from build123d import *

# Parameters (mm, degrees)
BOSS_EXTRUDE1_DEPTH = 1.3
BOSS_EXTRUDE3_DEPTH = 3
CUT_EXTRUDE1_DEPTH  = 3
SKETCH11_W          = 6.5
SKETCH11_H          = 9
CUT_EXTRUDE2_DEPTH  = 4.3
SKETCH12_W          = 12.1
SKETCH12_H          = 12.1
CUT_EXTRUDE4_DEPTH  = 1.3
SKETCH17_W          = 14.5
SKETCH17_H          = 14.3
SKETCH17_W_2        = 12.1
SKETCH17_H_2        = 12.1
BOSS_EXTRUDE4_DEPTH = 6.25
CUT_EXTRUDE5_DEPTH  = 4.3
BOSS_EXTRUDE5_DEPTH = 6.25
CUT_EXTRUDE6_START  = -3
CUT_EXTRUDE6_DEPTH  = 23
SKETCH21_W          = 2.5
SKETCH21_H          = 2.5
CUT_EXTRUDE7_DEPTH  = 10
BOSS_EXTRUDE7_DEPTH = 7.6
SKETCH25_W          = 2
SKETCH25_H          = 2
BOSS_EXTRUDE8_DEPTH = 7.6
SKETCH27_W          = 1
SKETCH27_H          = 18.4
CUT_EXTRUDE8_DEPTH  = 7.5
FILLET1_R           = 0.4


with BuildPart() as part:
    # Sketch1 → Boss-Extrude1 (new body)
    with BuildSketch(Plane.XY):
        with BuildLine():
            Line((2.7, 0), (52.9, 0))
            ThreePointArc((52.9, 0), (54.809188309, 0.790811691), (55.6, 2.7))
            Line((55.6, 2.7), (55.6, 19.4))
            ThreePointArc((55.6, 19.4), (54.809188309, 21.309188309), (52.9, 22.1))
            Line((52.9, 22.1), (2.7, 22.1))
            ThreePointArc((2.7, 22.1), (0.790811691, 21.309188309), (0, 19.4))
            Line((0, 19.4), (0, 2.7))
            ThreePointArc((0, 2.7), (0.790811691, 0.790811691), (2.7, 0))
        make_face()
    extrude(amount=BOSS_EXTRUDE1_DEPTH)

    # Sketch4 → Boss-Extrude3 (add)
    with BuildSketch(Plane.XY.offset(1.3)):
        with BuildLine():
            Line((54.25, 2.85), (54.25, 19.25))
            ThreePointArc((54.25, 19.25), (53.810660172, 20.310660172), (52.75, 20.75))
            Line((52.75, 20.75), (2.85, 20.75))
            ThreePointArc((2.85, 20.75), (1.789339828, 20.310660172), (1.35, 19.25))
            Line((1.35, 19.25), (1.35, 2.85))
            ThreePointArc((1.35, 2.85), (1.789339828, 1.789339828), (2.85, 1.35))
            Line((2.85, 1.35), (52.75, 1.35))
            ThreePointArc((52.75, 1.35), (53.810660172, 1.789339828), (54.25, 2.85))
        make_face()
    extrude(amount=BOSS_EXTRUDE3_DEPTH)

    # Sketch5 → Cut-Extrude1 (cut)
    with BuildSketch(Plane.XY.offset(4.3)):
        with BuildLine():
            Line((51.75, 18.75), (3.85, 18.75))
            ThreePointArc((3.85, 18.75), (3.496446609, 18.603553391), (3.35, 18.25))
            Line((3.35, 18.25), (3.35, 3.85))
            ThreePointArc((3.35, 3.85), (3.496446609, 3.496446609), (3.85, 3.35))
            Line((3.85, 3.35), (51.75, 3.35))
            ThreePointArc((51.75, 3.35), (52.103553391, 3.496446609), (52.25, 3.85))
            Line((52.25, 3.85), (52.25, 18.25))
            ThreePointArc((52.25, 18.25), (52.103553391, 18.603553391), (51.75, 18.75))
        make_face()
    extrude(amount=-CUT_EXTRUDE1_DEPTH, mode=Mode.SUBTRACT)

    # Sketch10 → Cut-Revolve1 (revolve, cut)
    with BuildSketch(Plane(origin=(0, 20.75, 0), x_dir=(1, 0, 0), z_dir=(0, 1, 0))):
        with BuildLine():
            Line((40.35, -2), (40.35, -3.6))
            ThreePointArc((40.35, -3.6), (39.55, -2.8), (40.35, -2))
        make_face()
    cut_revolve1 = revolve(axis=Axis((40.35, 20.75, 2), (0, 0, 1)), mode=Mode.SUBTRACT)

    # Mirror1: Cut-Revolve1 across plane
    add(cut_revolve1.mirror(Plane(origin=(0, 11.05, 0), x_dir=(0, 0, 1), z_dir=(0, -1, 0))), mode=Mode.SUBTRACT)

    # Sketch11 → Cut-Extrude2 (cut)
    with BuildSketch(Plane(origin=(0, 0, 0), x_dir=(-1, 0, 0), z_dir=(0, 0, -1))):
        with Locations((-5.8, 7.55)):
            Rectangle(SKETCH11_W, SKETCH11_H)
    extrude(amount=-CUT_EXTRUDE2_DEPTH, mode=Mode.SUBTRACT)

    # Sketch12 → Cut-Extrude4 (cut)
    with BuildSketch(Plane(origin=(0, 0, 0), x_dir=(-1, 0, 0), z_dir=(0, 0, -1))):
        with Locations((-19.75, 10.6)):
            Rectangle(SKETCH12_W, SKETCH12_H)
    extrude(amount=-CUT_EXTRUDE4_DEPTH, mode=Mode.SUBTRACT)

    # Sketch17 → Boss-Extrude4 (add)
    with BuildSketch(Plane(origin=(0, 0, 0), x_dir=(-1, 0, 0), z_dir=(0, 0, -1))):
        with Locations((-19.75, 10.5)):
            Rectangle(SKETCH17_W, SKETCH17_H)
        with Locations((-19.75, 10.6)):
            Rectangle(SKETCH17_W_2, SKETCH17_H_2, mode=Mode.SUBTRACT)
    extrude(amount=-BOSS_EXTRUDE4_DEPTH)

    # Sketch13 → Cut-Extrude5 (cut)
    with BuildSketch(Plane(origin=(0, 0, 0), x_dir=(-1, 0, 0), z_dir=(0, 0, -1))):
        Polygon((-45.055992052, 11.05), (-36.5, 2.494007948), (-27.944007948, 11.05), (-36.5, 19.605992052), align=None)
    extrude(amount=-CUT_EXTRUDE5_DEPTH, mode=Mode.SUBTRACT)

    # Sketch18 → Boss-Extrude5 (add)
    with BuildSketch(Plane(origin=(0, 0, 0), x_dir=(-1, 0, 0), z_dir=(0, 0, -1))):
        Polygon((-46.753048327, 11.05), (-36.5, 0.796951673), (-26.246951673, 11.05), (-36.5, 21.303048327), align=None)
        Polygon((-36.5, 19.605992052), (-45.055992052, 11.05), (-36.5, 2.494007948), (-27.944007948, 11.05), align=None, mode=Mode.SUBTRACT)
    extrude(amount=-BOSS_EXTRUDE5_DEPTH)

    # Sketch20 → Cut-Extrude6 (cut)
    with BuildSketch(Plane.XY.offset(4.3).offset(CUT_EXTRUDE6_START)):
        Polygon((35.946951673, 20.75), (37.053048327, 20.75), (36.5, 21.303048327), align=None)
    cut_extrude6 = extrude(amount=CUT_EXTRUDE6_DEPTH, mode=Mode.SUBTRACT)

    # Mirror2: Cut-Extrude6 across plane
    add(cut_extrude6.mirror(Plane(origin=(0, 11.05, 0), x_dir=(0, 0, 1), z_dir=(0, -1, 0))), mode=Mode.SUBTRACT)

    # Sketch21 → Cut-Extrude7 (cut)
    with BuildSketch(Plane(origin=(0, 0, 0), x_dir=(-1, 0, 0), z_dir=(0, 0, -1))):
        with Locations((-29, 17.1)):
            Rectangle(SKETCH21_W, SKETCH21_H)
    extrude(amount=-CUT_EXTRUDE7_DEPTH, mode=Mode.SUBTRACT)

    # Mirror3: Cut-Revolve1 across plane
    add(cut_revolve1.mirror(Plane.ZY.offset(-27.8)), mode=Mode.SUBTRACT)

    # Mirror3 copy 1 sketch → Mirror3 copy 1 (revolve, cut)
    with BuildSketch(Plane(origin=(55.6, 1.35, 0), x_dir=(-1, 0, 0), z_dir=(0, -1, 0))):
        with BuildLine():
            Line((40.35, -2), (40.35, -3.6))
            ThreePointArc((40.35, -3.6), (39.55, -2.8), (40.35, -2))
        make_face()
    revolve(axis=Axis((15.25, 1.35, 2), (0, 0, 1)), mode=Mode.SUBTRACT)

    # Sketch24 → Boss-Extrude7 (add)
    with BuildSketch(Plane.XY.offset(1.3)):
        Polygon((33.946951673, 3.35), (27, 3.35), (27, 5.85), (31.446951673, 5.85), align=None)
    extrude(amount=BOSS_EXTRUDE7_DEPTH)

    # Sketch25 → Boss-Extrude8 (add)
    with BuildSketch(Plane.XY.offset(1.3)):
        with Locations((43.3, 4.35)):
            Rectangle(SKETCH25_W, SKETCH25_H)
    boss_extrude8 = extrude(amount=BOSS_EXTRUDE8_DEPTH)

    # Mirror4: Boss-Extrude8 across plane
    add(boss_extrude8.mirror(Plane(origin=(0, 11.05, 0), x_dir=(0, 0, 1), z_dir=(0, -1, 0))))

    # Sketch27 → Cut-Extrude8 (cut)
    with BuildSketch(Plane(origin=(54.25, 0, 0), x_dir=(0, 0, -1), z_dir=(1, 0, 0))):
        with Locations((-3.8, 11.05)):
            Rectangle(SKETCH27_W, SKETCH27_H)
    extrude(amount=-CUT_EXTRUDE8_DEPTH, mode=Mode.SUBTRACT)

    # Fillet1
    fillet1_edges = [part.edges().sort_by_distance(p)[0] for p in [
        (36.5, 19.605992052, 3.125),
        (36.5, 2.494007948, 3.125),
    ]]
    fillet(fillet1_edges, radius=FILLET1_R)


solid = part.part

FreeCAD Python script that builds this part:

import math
import FreeCAD as App
import Part
import Sketcher
Q = App.Units.Quantity


def edges_at(feature, points):
    """Names of the edges that pass closest to the given points."""
    edges = feature.Shape.Edges
    near = lambda p: min(range(len(edges)), key=lambda i: edges[i].distToShape(Part.Vertex(*p))[0])
    return sorted({f"Edge{near(p) + 1}" for p in points})


def add_polygon(sketch, points):
    """Adds a closed chain of lines whose ends are joined by coincident constraints."""
    first, n = sketch.GeometryCount, len(points)
    for a, b in zip(points, points[1:] + points[:1]):
        sketch.addGeometry(Part.LineSegment(App.Vector(*a, 0), App.Vector(*b, 0)), False)
    for i in range(n):
        sketch.addConstraint(Sketcher.Constraint("Coincident", first + i, 2, first + (i + 1) % n, 1))

doc = App.newDocument("Part")
params = doc.addObject("Spreadsheet::Sheet", "Params")
for row, (alias, value) in enumerate([
    ("sketch1_radius", "2.7 mm"),
    ("sketch1_width", "50.2 mm"),
    ("sketch1_height", "16.7 mm"),
    ("pad1_length", "1.3 mm"),
    ("sketch2_radius", "1.5 mm"),
    ("sketch2_width", "49.9 mm"),
    ("sketch2_height", "16.4 mm"),
    ("pad2_length", "3 mm"),
    ("sketch3_radius", "0.5 mm"),
    ("sketch3_width", "47.9 mm"),
    ("sketch3_height", "14.4 mm"),
    ("pocket1_length", "3 mm"),
    ("sketch4_radius", "0.8 mm"),
    ("groove_angle", "360 deg"),
    ("sketch5_height", "9 mm"),
    ("sketch5_width", "6.5 mm"),
    ("pocket2_length", "4.3 mm"),
    ("sketch6_width", "12.1 mm"),
    ("pocket3_length", "1.3 mm"),
    ("sketch7_width", "14.5 mm"),
    ("sketch7_width2", "12.1 mm"),
    ("sketch7_height", "14.3 mm"),
    ("pad3_length", "6.25 mm"),
    ("sketch8_length", "12.1 mm"),
    ("pocket4_length", "4.3 mm"),
    ("sketch9_length", "14.5 mm"),
    ("sketch9_length2", "12.1 mm"),
    ("pad4_length", "6.25 mm"),
    ("pocket5_length", "23 mm"),
    ("sketch11_width", "2.5 mm"),
    ("pocket6_length", "10 mm"),
    ("sketch12_radius", "0.8 mm"),
    ("groove2_angle", "360 deg"),
    ("sketch13_height", "2.5 mm"),
    ("pad5_length", "7.6 mm"),
    ("sketch14_width", "2 mm"),
    ("pad6_length", "7.6 mm"),
    ("sketch15_height", "1 mm"),
    ("sketch15_width", "18.4 mm"),
    ("pocket7_length", "7.5 mm"),
    ("fillet_radius", "0.4 mm"),
], start=1):
    params.set(f"A{row}", alias)
    params.set(f"B{row}", "=" + value)
    params.setAlias(f"B{row}", alias)

body = doc.addObject("PartDesign::Body", "Body")

sketch1 = body.newObject("Sketcher::SketchObject", "Sketch")
sketch1.AttachmentSupport = (doc.getObject("XY_Plane"), [""])
sketch1.MapMode = "FlatFace"
sketch1.addGeometry([
    Part.LineSegment(App.Vector(2.7, 0, 0), App.Vector(52.9, 0, 0)),
    Part.ArcOfCircle(Part.Circle(App.Vector(52.9, 2.7, 0), App.Vector(0, 0, 1), 2.7), math.radians(-90), math.radians(0)),
    Part.LineSegment(App.Vector(55.6, 2.7, 0), App.Vector(55.6, 19.4, 0)),
    Part.ArcOfCircle(Part.Circle(App.Vector(52.9, 19.4, 0), App.Vector(0, 0, 1), 2.7), math.radians(0), math.radians(90)),
    Part.LineSegment(App.Vector(52.9, 22.1, 0), App.Vector(2.7, 22.1, 0)),
    Part.ArcOfCircle(Part.Circle(App.Vector(2.7, 19.4, 0), App.Vector(0, 0, 1), 2.7), math.radians(90), math.radians(180)),
    Part.LineSegment(App.Vector(0, 19.4, 0), App.Vector(0, 2.7, 0)),
    Part.ArcOfCircle(Part.Circle(App.Vector(2.7, 2.7, 0), App.Vector(0, 0, 1), 2.7), math.radians(-180), math.radians(-90)),
], False)
sketch1.addConstraint([
    Sketcher.Constraint("Tangent", 0, 2, 1, 1),
    Sketcher.Constraint("Tangent", 1, 2, 2, 1),
    Sketcher.Constraint("Tangent", 2, 2, 3, 1),
    Sketcher.Constraint("Tangent", 3, 2, 4, 1),
    Sketcher.Constraint("Tangent", 4, 2, 5, 1),
    Sketcher.Constraint("Tangent", 5, 2, 6, 1),
    Sketcher.Constraint("Tangent", 6, 2, 7, 1),
    Sketcher.Constraint("Tangent", 7, 2, 0, 1),
    Sketcher.Constraint("Horizontal", 0),
    Sketcher.Constraint("Vertical", 2),
    Sketcher.Constraint("Horizontal", 4),
    Sketcher.Constraint("Vertical", 6),
    Sketcher.Constraint("Equal", 1, 3),
    Sketcher.Constraint("Equal", 3, 5),
    Sketcher.Constraint("Equal", 5, 7),
    Sketcher.Constraint("PointOnObject", 0, 2, -1),
    Sketcher.Constraint("PointOnObject", 5, 2, -2),
    Sketcher.Constraint("Radius", 1, 2.7),
    Sketcher.Constraint("DistanceX", 0, 1, 0, 2, 50.2),
    Sketcher.Constraint("DistanceY", 2, 1, 2, 2, 16.7),
])
sketch1.setExpression("Constraints[17]", "Params.sketch1_radius")
sketch1.setExpression("Constraints[18]", "Params.sketch1_width")
sketch1.setExpression("Constraints[19]", "Params.sketch1_height")
pad1 = body.newObject("PartDesign::Pad", "Pad")
pad1.Profile = sketch1
pad1.setExpression("Length", "Params.pad1_length")

sketch2 = body.newObject("Sketcher::SketchObject", "Sketch001")
sketch2.AttachmentSupport = (doc.getObject("XY_Plane"), [""])
sketch2.MapMode = "FlatFace"
sketch2.AttachmentOffset = App.Placement(App.Vector(0, 0, 1.3), App.Rotation())
sketch2.addGeometry([
    Part.LineSegment(App.Vector(54.2, 2.9, 0), App.Vector(54.2, 19.2, 0)),
    Part.ArcOfCircle(Part.Circle(App.Vector(52.8, 19.3, 0), App.Vector(0, 0, 1), 1.5), math.radians(0), math.radians(90)),
    Part.LineSegment(App.Vector(52.8, 20.8, 0), App.Vector(2.9, 20.8, 0)),
    Part.ArcOfCircle(Part.Circle(App.Vector(2.8, 19.3, 0), App.Vector(0, 0, 1), 1.5), math.radians(90), math.radians(180)),
    Part.LineSegment(App.Vector(1.4, 19.2, 0), App.Vector(1.4, 2.9, 0)),
    Part.ArcOfCircle(Part.Circle(App.Vector(2.8, 2.8, 0), App.Vector(0, 0, 1), 1.5), math.radians(180), math.radians(270)),
    Part.LineSegment(App.Vector(2.9, 1.4, 0), App.Vector(52.8, 1.4, 0)),
    Part.ArcOfCircle(Part.Circle(App.Vector(52.8, 2.8, 0), App.Vector(0, 0, 1), 1.5), math.radians(-90), math.radians(0)),
], False)
sketch2.addConstraint([
    Sketcher.Constraint("Tangent", 0, 2, 1, 1),
    Sketcher.Constraint("Tangent", 1, 2, 2, 1),
    Sketcher.Constraint("Tangent", 2, 2, 3, 1),
    Sketcher.Constraint("Tangent", 3, 2, 4, 1),
    Sketcher.Constraint("Tangent", 4, 2, 5, 1),
    Sketcher.Constraint("Tangent", 5, 2, 6, 1),
    Sketcher.Constraint("Tangent", 6, 2, 7, 1),
    Sketcher.Constraint("Tangent", 7, 2, 0, 1),
    Sketcher.Constraint("Vertical", 0),
    Sketcher.Constraint("Horizontal", 2),
    Sketcher.Constraint("Vertical", 4),
    Sketcher.Constraint("Horizontal", 6),
    Sketcher.Constraint("Equal", 1, 3),
    Sketcher.Constraint("Equal", 3, 5),
    Sketcher.Constraint("Equal", 5, 7),
    Sketcher.Constraint("Radius", 1, 1.5),
    Sketcher.Constraint("DistanceX", 2, 2, 2, 1, 49.9),
    Sketcher.Constraint("DistanceY", 0, 1, 0, 2, 16.4),
    Sketcher.Constraint("DistanceX", -1, 1, 1, 3, 52.75),
    Sketcher.Constraint("DistanceY", -1, 1, 1, 3, 19.25),
])
sketch2.setExpression("Constraints[15]", "Params.sketch2_radius")
sketch2.setExpression("Constraints[16]", "Params.sketch2_width")
sketch2.setExpression("Constraints[17]", "Params.sketch2_height")
pad2 = body.newObject("PartDesign::Pad", "Pad001")
pad2.Profile = sketch2
pad2.setExpression("Length", "Params.pad2_length")

sketch3 = body.newObject("Sketcher::SketchObject", "Sketch002")
sketch3.AttachmentSupport = (doc.getObject("XY_Plane"), [""])
sketch3.MapMode = "FlatFace"
sketch3.AttachmentOffset = App.Placement(App.Vector(0, 0, 4.3), App.Rotation())
sketch3.addGeometry([
    Part.LineSegment(App.Vector(51.75, 18.75, 0), App.Vector(3.85, 18.75, 0)),
    Part.ArcOfCircle(Part.Circle(App.Vector(3.85, 18.25, 0), App.Vector(0, 0, 1), 0.5), math.radians(90), math.radians(180)),
    Part.LineSegment(App.Vector(3.35, 18.25, 0), App.Vector(3.35, 3.85, 0)),
    Part.ArcOfCircle(Part.Circle(App.Vector(3.85, 3.85, 0), App.Vector(0, 0, 1), 0.5), math.radians(180), math.radians(270)),
    Part.LineSegment(App.Vector(3.85, 3.35, 0), App.Vector(51.75, 3.35, 0)),
    Part.ArcOfCircle(Part.Circle(App.Vector(51.75, 3.85, 0), App.Vector(0, 0, 1), 0.5), math.radians(-90), math.radians(0)),
    Part.LineSegment(App.Vector(52.25, 3.85, 0), App.Vector(52.25, 18.25, 0)),
    Part.ArcOfCircle(Part.Circle(App.Vector(51.75, 18.25, 0), App.Vector(0, 0, 1), 0.5), math.radians(0), math.radians(90)),
], False)
sketch3.addConstraint([
    Sketcher.Constraint("Tangent", 0, 2, 1, 1),
    Sketcher.Constraint("Tangent", 1, 2, 2, 1),
    Sketcher.Constraint("Tangent", 2, 2, 3, 1),
    Sketcher.Constraint("Tangent", 3, 2, 4, 1),
    Sketcher.Constraint("Tangent", 4, 2, 5, 1),
    Sketcher.Constraint("Tangent", 5, 2, 6, 1),
    Sketcher.Constraint("Tangent", 6, 2, 7, 1),
    Sketcher.Constraint("Tangent", 7, 2, 0, 1),
    Sketcher.Constraint("Horizontal", 0),
    Sketcher.Constraint("Vertical", 2),
    Sketcher.Constraint("Horizontal", 4),
    Sketcher.Constraint("Vertical", 6),
    Sketcher.Constraint("Equal", 1, 3),
    Sketcher.Constraint("Equal", 3, 5),
    Sketcher.Constraint("Equal", 5, 7),
    Sketcher.Constraint("Radius", 1, 0.5),
    Sketcher.Constraint("DistanceX", 0, 2, 0, 1, 47.9),
    Sketcher.Constraint("DistanceY", 2, 2, 2, 1, 14.4),
    Sketcher.Constraint("DistanceX", -1, 1, 1, 3, 3.85),
    Sketcher.Constraint("DistanceY", -1, 1, 1, 3, 18.25),
])
sketch3.setExpression("Constraints[15]", "Params.sketch3_radius")
sketch3.setExpression("Constraints[16]", "Params.sketch3_width")
sketch3.setExpression("Constraints[17]", "Params.sketch3_height")
pocket1 = body.newObject("PartDesign::Pocket", "Pocket")
pocket1.Profile = sketch3
pocket1.setExpression("Length", "Params.pocket1_length")

sketch4 = body.newObject("Sketcher::SketchObject", "Sketch003")
sketch4.AttachmentSupport = (doc.getObject("XZ_Plane"), [""])
sketch4.MapMode = "FlatFace"
sketch4.AttachmentOffset = App.Placement(App.Vector(0, 0, -20.75), App.Rotation())
sketch4.addGeometry([
    Part.LineSegment(App.Vector(40.4, 3.6, 0), App.Vector(40.4, 2, 0)),
    Part.ArcOfCircle(Part.Circle(App.Vector(40.4, 2.8, 0), App.Vector(0, 0, 1), 0.8), math.radians(90), math.radians(270)),
], False)
sketch4.addGeometry(Part.LineSegment(App.Vector(40.4, 2, 0), App.Vector(40.4, 3.6, 0)), True)
sketch4.addConstraint([
    Sketcher.Constraint("Coincident", 0, 1, 1, 1),
    Sketcher.Constraint("Coincident", 1, 2, 0, 2),
    Sketcher.Constraint("Vertical", 0),
    Sketcher.Constraint("Vertical", 2),
    Sketcher.Constraint("Coincident", 2, 1, 1, 2),
    Sketcher.Constraint("Vertical", 1, 3, 0, 1),
    Sketcher.Constraint("Equal", 0, 2),
    Sketcher.Constraint("Radius", 1, 0.8),
    Sketcher.Constraint("DistanceY", -1, 1, 1, 2, 2.0),
    Sketcher.Constraint("DistanceX", -1, 1, 1, 3, 40.35),
])
sketch4.setExpression("Constraints[7]", "Params.sketch4_radius")
groove = body.newObject("PartDesign::Groove", "Groove")
groove.Profile = sketch4
groove.ReferenceAxis = (sketch4, ["Axis0"])
groove.setExpression("Angle", "Params.groove_angle")
doc.recompute()

datumplane = body.newObject("PartDesign::Plane", "DatumPlane")
datumplane.AttachmentSupport = (doc.getObject("XZ_Plane"), [""])
datumplane.MapMode = "FlatFace"
datumplane.AttachmentOffset = App.Placement(App.Vector(0, 0, -11.05), App.Rotation())
mirrored = body.newObject("PartDesign::Mirrored", "Mirrored")
mirrored.Originals = [groove]
mirrored.MirrorPlane = (datumplane, [""])
body.Tip = mirrored

sketch5 = body.newObject("Sketcher::SketchObject", "Sketch004")
sketch5.AttachmentSupport = (doc.getObject("XY_Plane"), [""])
sketch5.MapMode = "FlatFace"
add_polygon(sketch5, [(9, 12), (9, 3), (3, 3), (3, 12)])
sketch5.addConstraint([
    Sketcher.Constraint("Vertical", 0),
    Sketcher.Constraint("Horizontal", 1),
    Sketcher.Constraint("Vertical", 2),
    Sketcher.Constraint("Horizontal", 3),
    Sketcher.Constraint("DistanceY", 0, 2, 0, 1, 9.0),
    Sketcher.Constraint("DistanceX", 1, 2, 1, 1, 6.5),
    Sketcher.Constraint("DistanceX", -1, 1, 0, 2, 9.05),
    Sketcher.Constraint("DistanceY", -1, 1, 0, 2, 3.05),
])
sketch5.setExpression("Constraints[8]", "Params.sketch5_height")
sketch5.setExpression("Constraints[9]", "Params.sketch5_width")
pocket2 = body.newObject("PartDesign::Pocket", "Pocket001")
pocket2.Profile = sketch5
pocket2.setExpression("Length", "Params.pocket2_length")
pocket2.Reversed = True

sketch6 = body.newObject("Sketcher::SketchObject", "Sketch005")
sketch6.AttachmentSupport = (doc.getObject("XY_Plane"), [""])
sketch6.MapMode = "FlatFace"
add_polygon(sketch6, [(26, 17), (26, 5), (14, 5), (14, 17)])
sketch6.addConstraint([
    Sketcher.Constraint("Vertical", 0),
    Sketcher.Constraint("Horizontal", 1),
    Sketcher.Constraint("Vertical", 2),
    Sketcher.Constraint("Horizontal", 3),
    Sketcher.Constraint("Equal", 3, 0),
    Sketcher.Constraint("DistanceX", 1, 2, 1, 1, 12.1),
    Sketcher.Constraint("DistanceX", -1, 1, 0, 2, 25.8),
    Sketcher.Constraint("DistanceY", -1, 1, 0, 2, 4.55),
])
sketch6.setExpression("Constraints[9]", "Params.sketch6_width")
pocket3 = body.newObject("PartDesign::Pocket", "Pocket002")
pocket3.Profile = sketch6
pocket3.setExpression("Length", "Params.pocket3_length")
pocket3.Reversed = True

sketch7 = body.newObject("Sketcher::SketchObject", "Sketch006")
sketch7.AttachmentSupport = (doc.getObject("XY_Plane"), [""])
sketch7.MapMode = "FlatFace"
add_polygon(sketch7, [(27, 18), (27, 3), (12, 3), (12, 18)])
add_polygon(sketch7, [(14, 5), (26, 5), (26, 17), (14, 17)])
sketch7.addConstraint([
    Sketcher.Constraint("Vertical", 0),
    Sketcher.Constraint("Horizontal", 1),
    Sketcher.Constraint("Vertical", 2),
    Sketcher.Constraint("Horizontal", 3),
    Sketcher.Constraint("Horizontal", 4),
    Sketcher.Constraint("Vertical", 5),
    Sketcher.Constraint("Horizontal", 6),
    Sketcher.Constraint("Vertical", 7),
    Sketcher.Constraint("Equal", 6, 5),
    Sketcher.Constraint("DistanceX", 1, 2, 1, 1, 14.5),
    Sketcher.Constraint("DistanceX", 4, 1, 4, 2, 12.1),
    Sketcher.Constraint("DistanceY", 0, 2, 0, 1, 14.3),
    Sketcher.Constraint("DistanceX", -1, 1, 0, 2, 27.0),
    Sketcher.Constraint("DistanceY", 5, 2, 3, 2, 1.0),
    Sketcher.Constraint("DistanceX", -1, 1, 4, 2, 25.8),
    Sketcher.Constraint("DistanceY", -1, 1, 0, 2, 3.35),
])
sketch7.setExpression("Constraints[17]", "Params.sketch7_width")
sketch7.setExpression("Constraints[18]", "Params.sketch7_width2")
sketch7.setExpression("Constraints[19]", "Params.sketch7_height")
pad3 = body.newObject("PartDesign::Pad", "Pad002")
pad3.Profile = sketch7
pad3.setExpression("Length", "Params.pad3_length")

sketch8 = body.newObject("Sketcher::SketchObject", "Sketch007")
sketch8.AttachmentSupport = (doc.getObject("XY_Plane"), [""])
sketch8.MapMode = "FlatFace"
add_polygon(sketch8, [(45, 11), (36, 2), (28, 11), (36, 20)])
sketch8.addConstraint([
    Sketcher.Constraint("Perpendicular", 0, 1),
    Sketcher.Constraint("Perpendicular", 1, 2),
    Sketcher.Constraint("Perpendicular", 2, 3),
    Sketcher.Constraint("Horizontal", 1, 2, 3, 2),
    Sketcher.Constraint("Vertical", 0, 2, 2, 2),
    Sketcher.Constraint("Distance", 0, 12.1),
    Sketcher.Constraint("DistanceX", -1, 1, 0, 2, 36.5),
    Sketcher.Constraint("DistanceY", -1, 1, 1, 2, 11.05),
])
sketch8.setExpression("Constraints[9]", "Params.sketch8_length")
pocket4 = body.newObject("PartDesign::Pocket", "Pocket003")
pocket4.Profile = sketch8
pocket4.setExpression("Length", "Params.pocket4_length")
pocket4.Reversed = True

sketch9 = body.newObject("Sketcher::SketchObject", "Sketch008")
sketch9.AttachmentSupport = (doc.getObject("XY_Plane"), [""])
sketch9.MapMode = "FlatFace"
add_polygon(sketch9, [(47, 11), (36, 1), (26, 11), (36, 21)])
add_polygon(sketch9, [(45, 11), (36, 20), (28, 11), (36, 2)])
sketch9.addConstraint([
    Sketcher.Constraint("Perpendicular", 0, 1),
    Sketcher.Constraint("Perpendicular", 1, 2),
    Sketcher.Constraint("Perpendicular", 2, 3),
    Sketcher.Constraint("Parallel", 3, 4),
    Sketcher.Constraint("Perpendicular", 4, 5),
    Sketcher.Constraint("Perpendicular", 5, 6),
    Sketcher.Constraint("Perpendicular", 6, 7),
    Sketcher.Constraint("Horizontal", 1, 2, 3, 2),
    Sketcher.Constraint("Horizontal", 3, 2, 5, 2),
    Sketcher.Constraint("Horizontal", 5, 2, 7, 2),
    Sketcher.Constraint("Vertical", 0, 2, 2, 2),
    Sketcher.Constraint("Vertical", 2, 2, 4, 2),
    Sketcher.Constraint("Distance", 0, 14.5),
    Sketcher.Constraint("Distance", 4, 12.1),
    Sketcher.Constraint("DistanceX", -1, 1, 0, 2, 36.5),
    Sketcher.Constraint("DistanceY", -1, 1, 1, 2, 11.05),
])
sketch9.setExpression("Constraints[20]", "Params.sketch9_length")
sketch9.setExpression("Constraints[21]", "Params.sketch9_length2")
pad4 = body.newObject("PartDesign::Pad", "Pad003")
pad4.Profile = sketch9
pad4.setExpression("Length", "Params.pad4_length")

sketch10 = body.newObject("Sketcher::SketchObject", "Sketch009")
sketch10.AttachmentSupport = (doc.getObject("XY_Plane"), [""])
sketch10.MapMode = "FlatFace"
sketch10.AttachmentOffset = App.Placement(App.Vector(0, 0, 1.3), App.Rotation())
add_polygon(sketch10, [(35.9, 20.8), (37.1, 20.8), (36.5, 21.3)])
sketch10.addConstraint([
    Sketcher.Constraint("Horizontal", 0),
    Sketcher.Constraint("Perpendicular", 1, 2),
    Sketcher.Constraint("Equal", 1, 2),
    Sketcher.Constraint("DistanceX", -1, 1, 1, 2, 36.5),
    Sketcher.Constraint("DistanceY", -1, 1, 0, 2, 20.75),
    Sketcher.Constraint("Distance", 1, 0.782128),
])
pocket5 = body.newObject("PartDesign::Pocket", "Pocket004")
pocket5.Profile = sketch10
pocket5.setExpression("Length", "Params.pocket5_length")
pocket5.Reversed = True
doc.recompute()

datumplane2 = body.newObject("PartDesign::Plane", "DatumPlane001")
datumplane2.AttachmentSupport = (doc.getObject("XZ_Plane"), [""])
datumplane2.MapMode = "FlatFace"
datumplane2.AttachmentOffset = App.Placement(App.Vector(0, 0, -11.05), App.Rotation())
mirrored2 = body.newObject("PartDesign::Mirrored", "Mirrored001")
mirrored2.Originals = [pocket5]
mirrored2.MirrorPlane = (datumplane2, [""])
body.Tip = mirrored2

sketch11 = body.newObject("Sketcher::SketchObject", "Sketch010")
sketch11.AttachmentSupport = (doc.getObject("XY_Plane"), [""])
sketch11.MapMode = "FlatFace"
add_polygon(sketch11, [(30.2, 18.4), (30.2, 15.8), (27.8, 15.8), (27.8, 18.4)])
sketch11.addConstraint([
    Sketcher.Constraint("Vertical", 0),
    Sketcher.Constraint("Horizontal", 1),
    Sketcher.Constraint("Vertical", 2),
    Sketcher.Constraint("Horizontal", 3),
    Sketcher.Constraint("Equal", 3, 0),
    Sketcher.Constraint("DistanceX", 1, 2, 1, 1, 2.5),
    Sketcher.Constraint("DistanceX", -1, 1, 0, 2, 30.25),
    Sketcher.Constraint("DistanceY", -1, 1, 0, 2, 15.85),
])
sketch11.setExpression("Constraints[9]", "Params.sketch11_width")
pocket6 = body.newObject("PartDesign::Pocket", "Pocket005")
pocket6.Profile = sketch11
pocket6.setExpression("Length", "Params.pocket6_length")
pocket6.Reversed = True
doc.recompute()

datumplane3 = body.newObject("PartDesign::Plane", "DatumPlane002")
datumplane3.AttachmentSupport = (doc.getObject("YZ_Plane"), [""])
datumplane3.MapMode = "FlatFace"
datumplane3.AttachmentOffset = App.Placement(App.Vector(0, 0, 27.8), App.Rotation())
mirrored3 = body.newObject("PartDesign::Mirrored", "Mirrored002")
mirrored3.Originals = [groove]
mirrored3.MirrorPlane = (datumplane3, [""])
body.Tip = mirrored3

sketch12 = body.newObject("Sketcher::SketchObject", "Sketch011")
sketch12.AttachmentSupport = (doc.getObject("XZ_Plane"), [""])
sketch12.MapMode = "FlatFace"
sketch12.AttachmentOffset = App.Placement(App.Vector(0, 0, -1.35), App.Rotation())
sketch12.addGeometry([
    Part.LineSegment(App.Vector(15.2, 3.6, 0), App.Vector(15.2, 2, 0)),
    Part.ArcOfCircle(Part.Circle(App.Vector(15.2, 2.8, 0), App.Vector(0, 0, 1), 0.8), math.radians(-90), math.radians(90)),
], False)
sketch12.addGeometry(Part.LineSegment(App.Vector(15.2, 2, 0), App.Vector(15.2, 3.6, 0)), True)
sketch12.addConstraint([
    Sketcher.Constraint("Coincident", 0, 1, 1, 2),
    Sketcher.Constraint("Coincident", 1, 1, 0, 2),
    Sketcher.Constraint("Vertical", 0),
    Sketcher.Constraint("Vertical", 2),
    Sketcher.Constraint("Coincident", 2, 1, 1, 1),
    Sketcher.Constraint("Vertical", 1, 3, 0, 1),
    Sketcher.Constraint("Equal", 0, 2),
    Sketcher.Constraint("Radius", 1, 0.8),
    Sketcher.Constraint("DistanceY", -1, 1, 1, 1, 2.0),
    Sketcher.Constraint("DistanceX", -1, 1, 1, 3, 15.25),
])
sketch12.setExpression("Constraints[7]", "Params.sketch12_radius")
groove2 = body.newObject("PartDesign::Groove", "Groove001")
groove2.Profile = sketch12
groove2.ReferenceAxis = (sketch12, ["Axis0"])
groove2.setExpression("Angle", "Params.groove2_angle")

sketch13 = body.newObject("Sketcher::SketchObject", "Sketch012")
sketch13.AttachmentSupport = (doc.getObject("XY_Plane"), [""])
sketch13.MapMode = "FlatFace"
sketch13.AttachmentOffset = App.Placement(App.Vector(0, 0, 1.3), App.Rotation())
add_polygon(sketch13, [(27, 3.4), (33.9, 3.4), (31.4, 5.8), (27, 5.8)])
sketch13.addConstraint([
    Sketcher.Constraint("Horizontal", 0),
    Sketcher.Constraint("Horizontal", 2),
    Sketcher.Constraint("Vertical", 3),
    Sketcher.Constraint("Angle", 1, Q("135 deg")),
    Sketcher.Constraint("DistanceY", 3, 2, 3, 1, 2.5),
    Sketcher.Constraint("DistanceX", -1, 1, 2, 2, 27.0),
    Sketcher.Constraint("DistanceY", -1, 1, 0, 2, 3.35),
    Sketcher.Constraint("DistanceX", 0, 1, 0, 2, 6.946952),
])
sketch13.setExpression("Constraints[8]", "Params.sketch13_height")
pad5 = body.newObject("PartDesign::Pad", "Pad004")
pad5.Profile = sketch13
pad5.setExpression("Length", "Params.pad5_length")

sketch14 = body.newObject("Sketcher::SketchObject", "Sketch013")
sketch14.AttachmentSupport = (doc.getObject("XY_Plane"), [""])
sketch14.MapMode = "FlatFace"
sketch14.AttachmentOffset = App.Placement(App.Vector(0, 0, 1.3), App.Rotation())
add_polygon(sketch14, [(42.3, 5.3), (42.3, 3.4), (44.3, 3.4), (44.3, 5.3)])
sketch14.addConstraint([
    Sketcher.Constraint("Vertical", 0),
    Sketcher.Constraint("Horizontal", 1),
    Sketcher.Constraint("Vertical", 2),
    Sketcher.Constraint("Horizontal", 3),
    Sketcher.Constraint("Equal", 3, 0),
    Sketcher.Constraint("DistanceX", 1, 1, 1, 2, 2.0),
    Sketcher.Constraint("DistanceX", -1, 1, 0, 2, 42.3),
    Sketcher.Constraint("DistanceY", -1, 1, 0, 2, 3.35),
])
sketch14.setExpression("Constraints[9]", "Params.sketch14_width")
pad6 = body.newObject("PartDesign::Pad", "Pad005")
pad6.Profile = sketch14
pad6.setExpression("Length", "Params.pad6_length")
doc.recompute()

datumplane4 = body.newObject("PartDesign::Plane", "DatumPlane003")
datumplane4.AttachmentSupport = (doc.getObject("XZ_Plane"), [""])
datumplane4.MapMode = "FlatFace"
datumplane4.AttachmentOffset = App.Placement(App.Vector(0, 0, -11.05), App.Rotation())
mirrored4 = body.newObject("PartDesign::Mirrored", "Mirrored003")
mirrored4.Originals = [pad6]
mirrored4.MirrorPlane = (datumplane4, [""])
body.Tip = mirrored4

sketch15 = body.newObject("Sketcher::SketchObject", "Sketch014")
sketch15.AttachmentSupport = (doc.getObject("YZ_Plane"), [""])
sketch15.MapMode = "FlatFace"
sketch15.AttachmentOffset = App.Placement(App.Vector(0, 0, 54.25), App.Rotation())
add_polygon(sketch15, [(20.2, 4.3), (1.9, 4.3), (1.9, 3.3), (20.2, 3.3)])
sketch15.addConstraint([
    Sketcher.Constraint("Horizontal", 0),
    Sketcher.Constraint("Vertical", 1),
    Sketcher.Constraint("Horizontal", 2),
    Sketcher.Constraint("Vertical", 3),
    Sketcher.Constraint("DistanceY", 1, 2, 1, 1, 1.0),
    Sketcher.Constraint("DistanceX", 0, 2, 0, 1, 18.4),
    Sketcher.Constraint("DistanceY", -1, 1, 0, 2, 4.3),
    Sketcher.Constraint("DistanceX", -1, 1, 0, 2, 1.85),
])
sketch15.setExpression("Constraints[8]", "Params.sketch15_height")
sketch15.setExpression("Constraints[9]", "Params.sketch15_width")
pocket7 = body.newObject("PartDesign::Pocket", "Pocket006")
pocket7.Profile = sketch15
pocket7.setExpression("Length", "Params.pocket7_length")
doc.recompute()

fillet = body.newObject("PartDesign::Fillet", "Fillet")
fillet.Base = (pocket7, edges_at(pocket7, [(36.5, 19.606, 3.125), (36.5, 2.494, 3.125)]))
fillet.setExpression("Radius", "Params.fillet_radius")

doc.recompute()
